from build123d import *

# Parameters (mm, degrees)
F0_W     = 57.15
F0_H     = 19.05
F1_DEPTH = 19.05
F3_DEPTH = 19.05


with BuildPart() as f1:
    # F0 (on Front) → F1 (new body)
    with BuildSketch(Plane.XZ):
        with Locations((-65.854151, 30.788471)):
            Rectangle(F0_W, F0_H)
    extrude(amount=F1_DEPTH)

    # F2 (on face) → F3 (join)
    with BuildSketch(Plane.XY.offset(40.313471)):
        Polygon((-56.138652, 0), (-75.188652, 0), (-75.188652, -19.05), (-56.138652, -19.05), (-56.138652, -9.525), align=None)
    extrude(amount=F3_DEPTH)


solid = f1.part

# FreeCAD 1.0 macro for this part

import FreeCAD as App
import Part
import Sketcher
from FreeCAD import Vector
Q = App.Units.Quantity


def add_polygon(sketch, points):
    """Adds a closed chain of lines whose ends are joined by coincident constraints."""
    first, n = sketch.GeometryCount, len(points)
    for a, b in zip(points, points[1:] + points[:1]):
        sketch.addGeometry(Part.LineSegment(App.Vector(*a, 0), App.Vector(*b, 0)), False)
    for i in range(n):
        sketch.addConstraint(Sketcher.Constraint("Coincident", first + i, 2, first + (i + 1) % n, 1))

doc = App.newDocument("Part")
body = doc.addObject("PartDesign::Body", "Body")

# Sketch on XZ plane
sketch1 = body.newObject("Sketcher::SketchObject", "Sketch")
sketch1.AttachmentSupport = (doc.getObject("XZ_Plane"), [""])
sketch1.MapMode = "FlatFace"
add_polygon(sketch1, [(-94, 40), (-94, 21), (-37, 21), (-37, 40)])  # lines 0-3
sketch1.addConstraint([
    Sketcher.Constraint("Vertical", 0),
    Sketcher.Constraint("Horizontal", 1),
    Sketcher.Constraint("Vertical", 2),
    Sketcher.Constraint("Horizontal", 3),
    Sketcher.Constraint("DistanceX", 1, 1, 1, 2, Q("2.25 in")),
    Sketcher.Constraint("DistanceY", 0, 2, 0, 1, Q("0.75 in")),
    Sketcher.Constraint("DistanceX", 0, 2, -1, 1, Q("94.429151 mm")),
    Sketcher.Constraint("DistanceY", -1, 1, 0, 2, Q("21.263471 mm")),
])
pad1 = body.newObject("PartDesign::Pad", "Pad")
pad1.Profile = sketch1
pad1.Length = Q("0.75 in")

# Sketch on XY plane
sketch2 = body.newObject("Sketcher::SketchObject", "Sketch001")
sketch2.AttachmentSupport = (doc.getObject("XY_Plane"), [""])
sketch2.MapMode = "FlatFace"
sketch2.AttachmentOffset = App.Placement(Vector(0, 0, 40.313471), App.Rotation())
add_polygon(sketch2, [(-56, 0), (-75, 0), (-75, -19), (-56, -19)])  # lines 0-3
sketch2.addConstraint([
    Sketcher.Constraint("Horizontal", 0),
    Sketcher.Constraint("Vertical", 1),
    Sketcher.Constraint("Horizontal", 2),
    Sketcher.Constraint("Vertical", 3),
    Sketcher.Constraint("PointOnObject", 0, 2, -1),
    Sketcher.Constraint("Equal", 2, 1),
    Sketcher.Constraint("DistanceX", 0, 2, 0, 1, Q("0.75 in")),
    Sketcher.Constraint("DistanceX", 0, 2, -1, 1, Q("75.188652 mm")),
])
pad2 = body.newObject("PartDesign::Pad", "Pad001")
pad2.Profile = sketch2
pad2.Length = Q("0.75 in")

doc.recompute()
